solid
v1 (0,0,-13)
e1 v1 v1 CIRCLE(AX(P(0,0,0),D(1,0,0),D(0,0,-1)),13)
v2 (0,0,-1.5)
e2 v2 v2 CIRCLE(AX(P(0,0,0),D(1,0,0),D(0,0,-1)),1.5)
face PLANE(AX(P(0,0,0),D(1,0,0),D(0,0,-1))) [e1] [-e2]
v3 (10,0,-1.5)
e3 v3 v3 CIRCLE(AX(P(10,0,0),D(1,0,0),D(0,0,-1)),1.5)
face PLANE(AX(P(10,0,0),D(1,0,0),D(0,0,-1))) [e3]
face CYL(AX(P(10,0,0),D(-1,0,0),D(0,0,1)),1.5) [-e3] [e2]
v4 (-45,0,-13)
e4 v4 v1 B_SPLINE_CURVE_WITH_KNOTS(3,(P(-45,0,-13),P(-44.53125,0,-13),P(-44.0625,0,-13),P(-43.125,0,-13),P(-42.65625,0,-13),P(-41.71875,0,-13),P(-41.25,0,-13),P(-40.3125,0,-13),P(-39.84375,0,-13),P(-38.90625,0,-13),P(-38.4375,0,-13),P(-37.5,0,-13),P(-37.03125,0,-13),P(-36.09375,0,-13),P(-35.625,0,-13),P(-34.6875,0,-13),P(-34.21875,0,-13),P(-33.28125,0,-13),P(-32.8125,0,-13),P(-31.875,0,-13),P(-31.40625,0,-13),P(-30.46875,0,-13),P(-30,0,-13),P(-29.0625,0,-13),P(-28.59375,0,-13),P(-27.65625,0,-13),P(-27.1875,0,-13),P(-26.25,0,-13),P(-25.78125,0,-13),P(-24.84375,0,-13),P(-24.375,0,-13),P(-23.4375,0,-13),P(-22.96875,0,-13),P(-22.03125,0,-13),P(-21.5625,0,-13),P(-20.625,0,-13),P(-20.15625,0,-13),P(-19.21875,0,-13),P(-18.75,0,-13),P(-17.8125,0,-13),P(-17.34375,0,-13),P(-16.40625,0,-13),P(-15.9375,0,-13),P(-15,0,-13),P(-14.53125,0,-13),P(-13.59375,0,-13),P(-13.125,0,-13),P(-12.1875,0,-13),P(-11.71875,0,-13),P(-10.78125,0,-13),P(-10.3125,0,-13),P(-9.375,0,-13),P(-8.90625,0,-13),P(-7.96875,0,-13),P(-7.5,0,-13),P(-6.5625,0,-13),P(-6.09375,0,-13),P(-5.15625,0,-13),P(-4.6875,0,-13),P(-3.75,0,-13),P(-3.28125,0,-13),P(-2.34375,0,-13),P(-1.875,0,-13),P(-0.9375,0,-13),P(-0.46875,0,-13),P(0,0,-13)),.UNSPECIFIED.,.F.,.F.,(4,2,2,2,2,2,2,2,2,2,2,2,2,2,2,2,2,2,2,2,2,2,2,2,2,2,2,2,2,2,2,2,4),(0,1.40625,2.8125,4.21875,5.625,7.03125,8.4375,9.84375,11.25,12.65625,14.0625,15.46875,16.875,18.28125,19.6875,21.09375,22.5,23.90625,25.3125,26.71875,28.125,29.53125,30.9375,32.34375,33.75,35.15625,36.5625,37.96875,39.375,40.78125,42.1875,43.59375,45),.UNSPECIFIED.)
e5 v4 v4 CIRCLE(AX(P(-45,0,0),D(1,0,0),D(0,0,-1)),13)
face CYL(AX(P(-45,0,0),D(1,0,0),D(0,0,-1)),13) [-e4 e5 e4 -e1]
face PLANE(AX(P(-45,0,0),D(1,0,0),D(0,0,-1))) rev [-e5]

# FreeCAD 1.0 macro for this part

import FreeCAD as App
import Part
import Sketcher

V = App.Vector

doc = App.newDocument("Part")
params = doc.addObject("Spreadsheet::Sheet", "Params")
for row, (alias, value) in enumerate([
    ("sketch1_diameter", "3 mm"),
    ("pad1_length", "10 mm"),
    ("sketch2_diameter", "26 mm"),
    ("pad2_length", "45 mm"),
], start=1):
    params.set(f"A{row}", alias)
    params.set(f"B{row}", "=" + value)
    params.setAlias(f"B{row}", alias)

body = doc.addObject("PartDesign::Body", "Body")

sketch1 = body.newObject("Sketcher::SketchObject", "Sketch")
sketch1.AttachmentSupport = (doc.getObject("YZ_Plane"), [""])
sketch1.MapMode = "FlatFace"
sketch1.addGeometry(Part.Circle(V(0, 0, 0), V(0, 0, 1), 1.5), False)
sketch1.addConstraint([
    Sketcher.Constraint("Coincident", 0, 3, -1, 1),
    Sketcher.Constraint("Diameter", 0, 3.0),
])
sketch1.setExpression("Constraints[1]", "Params.sketch1_diameter")
pad1 = body.newObject("PartDesign::Pad", "Pad")
pad1.Profile = sketch1
pad1.setExpression("Length", "Params.pad1_length")

sketch2 = body.newObject("Sketcher::SketchObject", "Sketch001")
sketch2.AttachmentSupport = (doc.getObject("YZ_Plane"), [""])
sketch2.MapMode = "FlatFace"
sketch2.addGeometry(Part.Circle(V(0, 0, 0), V(0, 0, 1), 13), False)
sketch2.addConstraint([
    Sketcher.Constraint("Coincident", 0, 3, -1, 1),
    Sketcher.Constraint("Diameter", 0, 26.0),
])
sketch2.setExpression("Constraints[1]", "Params.sketch2_diameter")
pad2 = body.newObject("PartDesign::Pad", "Pad001")
pad2.Profile = sketch2
pad2.setExpression("Length", "Params.pad2_length")
pad2.Reversed = True

doc.recompute()
